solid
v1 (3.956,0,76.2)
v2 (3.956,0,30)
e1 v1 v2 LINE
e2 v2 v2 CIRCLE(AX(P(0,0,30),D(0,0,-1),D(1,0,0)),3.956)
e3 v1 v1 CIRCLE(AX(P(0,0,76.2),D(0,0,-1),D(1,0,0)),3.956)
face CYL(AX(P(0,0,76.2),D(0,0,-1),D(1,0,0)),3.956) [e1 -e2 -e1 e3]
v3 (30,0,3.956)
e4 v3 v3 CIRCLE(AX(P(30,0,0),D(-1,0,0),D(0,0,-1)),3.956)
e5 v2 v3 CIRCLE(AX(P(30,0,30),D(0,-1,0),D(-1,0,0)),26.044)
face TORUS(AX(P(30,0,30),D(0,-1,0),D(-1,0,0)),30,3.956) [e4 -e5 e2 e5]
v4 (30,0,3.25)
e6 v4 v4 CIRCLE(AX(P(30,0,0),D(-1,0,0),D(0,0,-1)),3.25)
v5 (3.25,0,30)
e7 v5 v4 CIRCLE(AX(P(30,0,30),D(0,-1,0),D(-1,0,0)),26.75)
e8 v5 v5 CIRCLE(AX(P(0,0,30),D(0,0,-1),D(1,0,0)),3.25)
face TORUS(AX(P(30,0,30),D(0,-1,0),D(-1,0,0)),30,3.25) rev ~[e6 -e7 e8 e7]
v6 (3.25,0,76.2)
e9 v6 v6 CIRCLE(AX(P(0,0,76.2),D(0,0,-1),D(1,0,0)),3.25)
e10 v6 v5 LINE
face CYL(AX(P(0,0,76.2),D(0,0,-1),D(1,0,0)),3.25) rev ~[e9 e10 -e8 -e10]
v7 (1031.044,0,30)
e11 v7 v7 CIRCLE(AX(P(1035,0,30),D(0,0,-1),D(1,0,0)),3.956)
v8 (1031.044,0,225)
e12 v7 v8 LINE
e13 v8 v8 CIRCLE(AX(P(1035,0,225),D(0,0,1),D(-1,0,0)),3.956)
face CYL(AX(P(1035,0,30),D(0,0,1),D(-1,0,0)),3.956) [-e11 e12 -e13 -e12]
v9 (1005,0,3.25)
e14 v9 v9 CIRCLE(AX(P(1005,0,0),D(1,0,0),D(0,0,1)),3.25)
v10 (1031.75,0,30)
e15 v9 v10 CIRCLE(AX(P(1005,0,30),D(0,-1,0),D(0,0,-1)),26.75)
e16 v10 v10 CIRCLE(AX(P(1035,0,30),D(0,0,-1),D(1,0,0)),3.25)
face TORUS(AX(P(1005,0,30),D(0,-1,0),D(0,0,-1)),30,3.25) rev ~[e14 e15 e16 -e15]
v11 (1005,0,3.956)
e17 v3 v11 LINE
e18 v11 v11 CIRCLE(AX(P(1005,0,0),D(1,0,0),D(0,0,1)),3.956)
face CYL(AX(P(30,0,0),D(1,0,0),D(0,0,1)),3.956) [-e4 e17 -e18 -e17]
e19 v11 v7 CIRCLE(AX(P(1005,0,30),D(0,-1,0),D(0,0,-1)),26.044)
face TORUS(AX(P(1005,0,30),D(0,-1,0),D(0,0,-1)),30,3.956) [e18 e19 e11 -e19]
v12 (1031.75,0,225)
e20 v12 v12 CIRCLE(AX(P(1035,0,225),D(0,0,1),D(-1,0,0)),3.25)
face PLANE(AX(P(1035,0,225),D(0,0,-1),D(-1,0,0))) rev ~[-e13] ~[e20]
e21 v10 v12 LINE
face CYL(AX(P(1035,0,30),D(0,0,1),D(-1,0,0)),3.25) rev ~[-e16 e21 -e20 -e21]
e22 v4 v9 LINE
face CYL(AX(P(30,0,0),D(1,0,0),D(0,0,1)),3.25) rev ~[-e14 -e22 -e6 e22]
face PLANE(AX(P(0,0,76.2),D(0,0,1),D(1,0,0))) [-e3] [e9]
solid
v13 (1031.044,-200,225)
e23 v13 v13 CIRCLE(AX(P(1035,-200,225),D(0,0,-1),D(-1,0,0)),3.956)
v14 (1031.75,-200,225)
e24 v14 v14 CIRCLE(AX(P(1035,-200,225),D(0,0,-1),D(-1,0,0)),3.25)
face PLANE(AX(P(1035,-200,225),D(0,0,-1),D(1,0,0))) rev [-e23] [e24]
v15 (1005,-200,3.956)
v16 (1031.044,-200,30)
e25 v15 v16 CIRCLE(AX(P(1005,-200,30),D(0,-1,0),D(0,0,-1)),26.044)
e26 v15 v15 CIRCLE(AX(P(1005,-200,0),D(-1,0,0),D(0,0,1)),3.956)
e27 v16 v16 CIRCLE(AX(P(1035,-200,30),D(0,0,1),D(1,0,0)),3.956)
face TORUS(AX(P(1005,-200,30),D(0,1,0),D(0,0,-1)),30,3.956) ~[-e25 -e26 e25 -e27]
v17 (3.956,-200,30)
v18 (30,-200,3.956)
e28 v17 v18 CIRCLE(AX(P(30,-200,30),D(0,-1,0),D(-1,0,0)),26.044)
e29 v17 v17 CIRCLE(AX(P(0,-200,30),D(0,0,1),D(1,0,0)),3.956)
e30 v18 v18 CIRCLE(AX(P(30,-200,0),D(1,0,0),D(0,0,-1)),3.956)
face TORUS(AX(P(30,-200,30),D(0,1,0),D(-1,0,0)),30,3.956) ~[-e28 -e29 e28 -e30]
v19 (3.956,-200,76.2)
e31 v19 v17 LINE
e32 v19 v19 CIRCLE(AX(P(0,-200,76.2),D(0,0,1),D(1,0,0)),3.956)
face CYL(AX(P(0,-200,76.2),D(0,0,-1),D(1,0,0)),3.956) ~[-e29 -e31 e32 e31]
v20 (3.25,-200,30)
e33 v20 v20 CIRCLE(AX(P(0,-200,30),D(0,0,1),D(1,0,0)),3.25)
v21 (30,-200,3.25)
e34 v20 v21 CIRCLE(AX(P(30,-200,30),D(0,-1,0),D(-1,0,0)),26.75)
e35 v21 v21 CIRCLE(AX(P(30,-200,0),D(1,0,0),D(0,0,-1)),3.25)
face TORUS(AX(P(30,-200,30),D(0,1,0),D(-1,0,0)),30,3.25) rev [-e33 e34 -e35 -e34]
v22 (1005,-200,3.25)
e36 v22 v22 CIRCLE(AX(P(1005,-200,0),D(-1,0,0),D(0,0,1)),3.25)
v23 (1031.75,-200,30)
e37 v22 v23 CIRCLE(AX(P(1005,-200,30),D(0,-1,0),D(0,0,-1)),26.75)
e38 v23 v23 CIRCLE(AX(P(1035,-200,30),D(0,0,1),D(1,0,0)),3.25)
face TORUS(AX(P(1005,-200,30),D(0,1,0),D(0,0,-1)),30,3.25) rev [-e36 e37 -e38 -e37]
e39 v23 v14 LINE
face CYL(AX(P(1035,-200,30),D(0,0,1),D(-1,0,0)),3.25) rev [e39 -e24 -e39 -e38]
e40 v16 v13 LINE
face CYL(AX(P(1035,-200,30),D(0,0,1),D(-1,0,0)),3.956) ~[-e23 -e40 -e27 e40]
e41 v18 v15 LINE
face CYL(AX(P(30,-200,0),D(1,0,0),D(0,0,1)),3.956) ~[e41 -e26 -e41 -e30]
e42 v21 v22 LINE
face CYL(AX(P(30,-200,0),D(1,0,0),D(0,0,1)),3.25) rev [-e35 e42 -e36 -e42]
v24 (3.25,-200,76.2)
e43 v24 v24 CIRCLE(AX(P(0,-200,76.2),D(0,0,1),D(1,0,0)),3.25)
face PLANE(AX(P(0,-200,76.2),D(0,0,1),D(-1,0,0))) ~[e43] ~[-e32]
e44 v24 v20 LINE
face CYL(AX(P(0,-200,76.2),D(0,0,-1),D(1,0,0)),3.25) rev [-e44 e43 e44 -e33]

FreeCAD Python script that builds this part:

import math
import FreeCAD as App
import Part
import Sketcher

V = App.Vector

doc = App.newDocument("Part")
body = doc.addObject("PartDesign::Body", "Body")

# Sketch on YZ plane
sketch1 = body.newObject("Sketcher::SketchObject", "Sketch")
sketch1.AttachmentSupport = (doc.getObject("YZ_Plane"), [""])
sketch1.MapMode = "FlatFace"
sketch1.addGeometry([
    Part.Circle(V(0, 0, 0), V(0, 0, 1), 4.8),
    Part.Circle(V(0, 0, 0), V(0, 0, 1), 4),
], False)
sketch1.addConstraint([
    Sketcher.Constraint("Coincident", 0, 3, -1, 1),
    Sketcher.Constraint("Coincident", 1, 3, -1, 1),
    Sketcher.Constraint("Diameter", 1, 8.0),
    Sketcher.Constraint("Diameter", 0, 9.525),
])
pad1 = body.newObject("PartDesign::Pad", "Pad")
pad1.Profile = sketch1
pad1.Length = 35
body2 = doc.addObject("PartDesign::Body", "Body001")

# Sketch on YZ plane
sketch2 = body2.newObject("Sketcher::SketchObject", "Sketch001")
sketch2.AttachmentSupport = (doc.getObject("YZ_Plane001"), [""])
sketch2.MapMode = "FlatFace"
sketch2.addGeometry([
    Part.Circle(V(0, 0, 0), V(0, 0, 1), 4.8),
    Part.Circle(V(0, 0, 0), V(0, 0, 1), 4),
], False)
sketch2.addConstraint([
    Sketcher.Constraint("Coincident", 0, 3, -1, 1),
    Sketcher.Constraint("Coincident", 1, 3, -1, 1),
    Sketcher.Constraint("Diameter", 1, 8.0),
    Sketcher.Constraint("Diameter", 0, 9.525),
])
pad2 = body2.newObject("PartDesign::Pad", "Pad001")
pad2.Profile = sketch2
pad2.Length = 66.5
pad2.Reversed = True
body3 = doc.addObject("PartDesign::Body", "Body002")

# Sketch on YZ plane
sketch3 = body3.newObject("Sketcher::SketchObject", "Sketch002")
sketch3.AttachmentSupport = (doc.getObject("YZ_Plane002"), [""])
sketch3.MapMode = "FlatFace"
sketch3.addGeometry([
    Part.Circle(V(0, 0, 0), V(0, 0, 1), 4.8),
    Part.Circle(V(0, 0, 0), V(0, 0, 1), 4),
], False)
sketch3.addConstraint([
    Sketcher.Constraint("Coincident", 0, 3, -1, 1),
    Sketcher.Constraint("Coincident", 1, 3, -1, 1),
    Sketcher.Constraint("Diameter", 1, 8.0),
    Sketcher.Constraint("Diameter", 0, 9.525),
])
pad3 = body3.newObject("PartDesign::Pad", "Pad002")
pad3.Profile = sketch3
pad3.Length = 1035
body4 = doc.addObject("PartDesign::Body", "Body003")

# Sketch on YZ plane
sketch4 = body4.newObject("Sketcher::SketchObject", "Sketch003")
sketch4.AttachmentSupport = (doc.getObject("YZ_Plane003"), [""])
sketch4.MapMode = "FlatFace"
sketch4.addGeometry([
    Part.Circle(V(0, 0, 0), V(0, 0, 1), 4.8),
    Part.Circle(V(0, 0, 0), V(0, 0, 1), 4),
], False)
sketch4.addConstraint([
    Sketcher.Constraint("Coincident", 0, 3, -1, 1),
    Sketcher.Constraint("Coincident", 1, 3, -1, 1),
    Sketcher.Constraint("Diameter", 1, 8.0),
    Sketcher.Constraint("Diameter", 0, 9.525),
])
pad4 = body4.newObject("PartDesign::Pad", "Pad003")
pad4.Profile = sketch4
pad4.Length = 1035
pad4.Reversed = True
body5 = doc.addObject("PartDesign::Body", "Body004")

# Sketch on XY plane
sketch5 = body5.newObject("Sketcher::SketchObject", "Sketch004")
sketch5.AttachmentSupport = (doc.getObject("XY_Plane004"), [""])
sketch5.MapMode = "FlatFace"
sketch5.AttachmentOffset = App.Placement(V(0, 0, 76.2), App.Rotation())
sketch5.addGeometry([
    Part.Circle(V(0, 0, 0), V(0, 0, 1), 4),
    Part.Circle(V(0, 0, 0), V(0, 0, 1), 3.2),
], False)
sketch5.addConstraint([
    Sketcher.Constraint("Coincident", 0, 3, -1, 1),
    Sketcher.Constraint("Coincident", 1, 3, -1, 1),
    Sketcher.Constraint("Diameter", 1, 6.5),
    Sketcher.Constraint("Diameter", 0, 7.912),
])

# Sketch on XZ plane
sketch6 = body5.newObject("Sketcher::SketchObject", "Sketch005")
sketch6.AttachmentSupport = (doc.getObject("XZ_Plane004"), [""])
sketch6.MapMode = "FlatFace"
sketch6.addGeometry([
    Part.LineSegment(V(0, 76, 0), V(0, 30, 0)),  # 0
    Part.ArcOfCircle(Part.Circle(V(30, 30, 0), V(0, 0, 1), 30), math.radians(180), math.radians(270)),  # 1
    Part.LineSegment(V(30, 0, 0), V(1005, 0, 0)),  # 2
    Part.ArcOfCircle(Part.Circle(V(1005, 30, 0), V(0, 0, 1), 30), math.radians(-90), math.radians(0)),  # 3
    Part.LineSegment(V(1035, 30, 0), V(1035, 225, 0)),  # 4
], False)
sketch6.addConstraint([
    Sketcher.Constraint("Tangent", 0, 2, 1, 1),
    Sketcher.Constraint("Tangent", 1, 2, 2, 1),
    Sketcher.Constraint("Tangent", 2, 2, 3, 1),
    Sketcher.Constraint("Tangent", 3, 2, 4, 1),
    Sketcher.Constraint("Vertical", 0),
    Sketcher.Constraint("Horizontal", 2),
    Sketcher.Constraint("Vertical", 4),
    Sketcher.Constraint("Equal", 1, 3),
    Sketcher.Constraint("PointOnObject", 0, 1, -2),
    Sketcher.Constraint("PointOnObject", 1, 2, -1),
    Sketcher.Constraint("Radius", 1, 30.0),
    Sketcher.Constraint("DistanceX", 2, 1, 2, 2, 975.0),
    Sketcher.Constraint("DistanceY", 4, 1, 4, 2, 195.0),
    Sketcher.Constraint("DistanceY", 0, 2, 0, 1, 46.2),
])
doc.recompute()

additivepipe = body5.newObject("PartDesign::AdditivePipe", "AdditivePipe")
additivepipe.Profile = sketch5
additivepipe.Spine = (sketch6, ["Edge1", "Edge2", "Edge3", "Edge4", "Edge5"])
body6 = doc.addObject("PartDesign::Body", "Body005")
doc.recompute()

mirroring = doc.addObject("Part::Mirroring", "Mirroring")
mirroring.Source = body5
mirroring.Base = V(0, -100, 0)
mirroring.Normal = V(0, -1, 0)
body6.BaseFeature = mirroring
doc.recompute()
body.Visibility = False
body2.Visibility = False
body3.Visibility = False
body4.Visibility = False
mirroring.Visibility = False

doc.recompute()
